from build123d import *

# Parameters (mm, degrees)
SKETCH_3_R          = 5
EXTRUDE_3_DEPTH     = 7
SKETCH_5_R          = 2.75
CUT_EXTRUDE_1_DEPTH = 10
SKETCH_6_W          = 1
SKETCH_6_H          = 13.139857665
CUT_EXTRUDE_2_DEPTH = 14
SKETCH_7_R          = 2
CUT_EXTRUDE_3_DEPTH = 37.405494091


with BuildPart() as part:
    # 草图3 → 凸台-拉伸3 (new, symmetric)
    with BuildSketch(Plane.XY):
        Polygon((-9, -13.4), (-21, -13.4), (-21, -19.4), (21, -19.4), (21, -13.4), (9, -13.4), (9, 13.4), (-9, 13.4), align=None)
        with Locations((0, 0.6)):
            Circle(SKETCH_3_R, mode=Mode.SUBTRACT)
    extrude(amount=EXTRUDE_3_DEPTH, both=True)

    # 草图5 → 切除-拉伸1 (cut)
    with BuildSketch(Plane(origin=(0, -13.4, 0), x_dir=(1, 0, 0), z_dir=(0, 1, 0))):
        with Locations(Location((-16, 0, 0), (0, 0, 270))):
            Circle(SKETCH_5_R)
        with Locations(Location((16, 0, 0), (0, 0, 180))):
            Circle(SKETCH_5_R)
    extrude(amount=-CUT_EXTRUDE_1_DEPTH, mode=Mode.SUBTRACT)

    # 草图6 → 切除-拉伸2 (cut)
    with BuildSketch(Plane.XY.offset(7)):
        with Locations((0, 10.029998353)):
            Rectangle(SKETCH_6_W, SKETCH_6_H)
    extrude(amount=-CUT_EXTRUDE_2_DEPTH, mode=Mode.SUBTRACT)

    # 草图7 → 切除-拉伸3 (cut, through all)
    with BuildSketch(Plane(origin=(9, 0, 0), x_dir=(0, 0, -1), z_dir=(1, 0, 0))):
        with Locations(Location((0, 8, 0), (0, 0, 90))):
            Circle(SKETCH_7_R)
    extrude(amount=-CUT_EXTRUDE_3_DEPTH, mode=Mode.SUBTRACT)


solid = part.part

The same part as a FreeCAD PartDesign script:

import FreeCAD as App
import Part
import Sketcher
from FreeCAD import Vector


def add_polygon(sketch, points):
    """Adds a closed chain of lines whose ends are joined by coincident constraints."""
    first, n = sketch.GeometryCount, len(points)
    for a, b in zip(points, points[1:] + points[:1]):
        sketch.addGeometry(Part.LineSegment(App.Vector(*a, 0), App.Vector(*b, 0)), False)
    for i in range(n):
        sketch.addConstraint(Sketcher.Constraint("Coincident", first + i, 2, first + (i + 1) % n, 1))

doc = App.newDocument("Part")
body = doc.addObject("PartDesign::Body", "Body")

# Sketch on XY plane
sketch1 = doc.addObject("Sketcher::SketchObject", "Sketch")
body.addObject(sketch1)
sketch1.AttachmentSupport = (doc.XY_Plane, [""])
sketch1.MapMode = "FlatFace"
add_polygon(sketch1, [(-9, -13), (-21, -13), (-21, -19), (21, -19), (21, -13), (9, -13), (9, 13), (-9, 13)])  # lines 0-7
sketch1.addGeometry(Part.Circle(Vector(0, 1, 0), Vector(0, 0, 1), 5), False)  # 8
sketch1.addConstraint(Sketcher.Constraint("Horizontal", 0))
sketch1.addConstraint(Sketcher.Constraint("Vertical", 1))
sketch1.addConstraint(Sketcher.Constraint("Horizontal", 2))
sketch1.addConstraint(Sketcher.Constraint("Vertical", 3))
sketch1.addConstraint(Sketcher.Constraint("Horizontal", 4))
sketch1.addConstraint(Sketcher.Constraint("Vertical", 5))
sketch1.addConstraint(Sketcher.Constraint("Horizontal", 6))
sketch1.addConstraint(Sketcher.Constraint("Vertical", 7))
sketch1.addConstraint(Sketcher.Constraint("Symmetric", 4, 2, 6, 2, -1, 1))
sketch1.addConstraint(Sketcher.Constraint("Symmetric", 0, 2, 3, 2, -2))
sketch1.addConstraint(Sketcher.Constraint("PointOnObject", 8, 3, -2))
sketch1.addConstraint(Sketcher.Constraint("Diameter", 8, 10.0))
sketch1.addConstraint(Sketcher.Constraint("DistanceX", 0, 2, 0, 1, 12.0))
sketch1.addConstraint(Sketcher.Constraint("DistanceX", 2, 1, 2, 2, 42.0))
sketch1.addConstraint(Sketcher.Constraint("DistanceY", 1, 2, 1, 1, 6.0))
sketch1.addConstraint(Sketcher.Constraint("DistanceY", 5, 1, 5, 2, 26.8))
sketch1.addConstraint(Sketcher.Constraint("DistanceY", 0, 2, 8, 3, 14.0))
pad1 = doc.addObject("PartDesign::Pad", "Pad")
body.addObject(pad1)
pad1.Profile = sketch1
pad1.Length = 14
pad1.Midplane = True

# Sketch on XZ plane
sketch2 = doc.addObject("Sketcher::SketchObject", "Sketch001")
body.addObject(sketch2)
sketch2.AttachmentSupport = (doc.XZ_Plane, [""])
sketch2.MapMode = "FlatFace"
sketch2.AttachmentOffset = App.Placement(Vector(0, 0, 13.4), App.Rotation())
sketch2.addGeometry(Part.Circle(Vector(-16, 0, 0), Vector(0, 0, 1), 2.8), False)
sketch2.addGeometry(Part.Circle(Vector(16, 0, 0), Vector(0, 0, 1), 2.8), False)
sketch2.addConstraint(Sketcher.Constraint("Equal", 0, 1))
sketch2.addConstraint(Sketcher.Constraint("Symmetric", 0, 3, 1, 3, -1, 1))
sketch2.addConstraint(Sketcher.Constraint("PointOnObject", 0, 3, -1))
sketch2.addConstraint(Sketcher.Constraint("Diameter", 0, 5.5))
sketch2.addConstraint(Sketcher.Constraint("DistanceX", 0, 3, -1, 1, 16.0))
pocket1 = doc.addObject("PartDesign::Pocket", "Pocket")
body.addObject(pocket1)
pocket1.Profile = sketch2
pocket1.Length = 10
pocket1.Reversed = True

# Sketch on XY plane
sketch3 = doc.addObject("Sketcher::SketchObject", "Sketch002")
body.addObject(sketch3)
sketch3.AttachmentSupport = (doc.XY_Plane, [""])
sketch3.MapMode = "FlatFace"
sketch3.AttachmentOffset = App.Placement(Vector(0, 0, 7), App.Rotation())
add_polygon(sketch3, [(-0.5, 16.6), (-0.5, 3.5), (0.5, 3.5), (0.5, 16.6)])  # lines 0-3
sketch3.addConstraint(Sketcher.Constraint("Vertical", 0))
sketch3.addConstraint(Sketcher.Constraint("Horizontal", 1))
sketch3.addConstraint(Sketcher.Constraint("Vertical", 2))
sketch3.addConstraint(Sketcher.Constraint("Horizontal", 3))
sketch3.addConstraint(Sketcher.Constraint("DistanceX", 1, 1, 1, 2, 1.0))
sketch3.addConstraint(Sketcher.Constraint("DistanceX", 0, 2, -1, 1, 0.5))
sketch3.addConstraint(Sketcher.Constraint("DistanceY", 0, 2, 0, 1, 13.139858))
sketch3.addConstraint(Sketcher.Constraint("DistanceY", -1, 1, 0, 2, 3.46007))
pocket2 = doc.addObject("PartDesign::Pocket", "Pocket001")
body.addObject(pocket2)
pocket2.Profile = sketch3
pocket2.Length = 14

# Sketch on YZ plane
sketch4 = doc.addObject("Sketcher::SketchObject", "Sketch003")
body.addObject(sketch4)
sketch4.AttachmentSupport = (doc.YZ_Plane, [""])
sketch4.MapMode = "FlatFace"
sketch4.AttachmentOffset = App.Placement(Vector(0, 0, 9), App.Rotation())
sketch4.addGeometry(Part.Circle(Vector(8, 0, 0), Vector(0, 0, 1), 2), False)
sketch4.addConstraint(Sketcher.Constraint("PointOnObject", 0, 3, -1))
sketch4.addConstraint(Sketcher.Constraint("Diameter", 0, 4.0))
sketch4.addConstraint(Sketcher.Constraint("DistanceX", -1, 1, 0, 3, 8.0))
pocket3 = doc.addObject("PartDesign::Pocket", "Pocket002")
body.addObject(pocket3)
pocket3.Profile = sketch4
pocket3.Type = "ThroughAll"

doc.recompute()
